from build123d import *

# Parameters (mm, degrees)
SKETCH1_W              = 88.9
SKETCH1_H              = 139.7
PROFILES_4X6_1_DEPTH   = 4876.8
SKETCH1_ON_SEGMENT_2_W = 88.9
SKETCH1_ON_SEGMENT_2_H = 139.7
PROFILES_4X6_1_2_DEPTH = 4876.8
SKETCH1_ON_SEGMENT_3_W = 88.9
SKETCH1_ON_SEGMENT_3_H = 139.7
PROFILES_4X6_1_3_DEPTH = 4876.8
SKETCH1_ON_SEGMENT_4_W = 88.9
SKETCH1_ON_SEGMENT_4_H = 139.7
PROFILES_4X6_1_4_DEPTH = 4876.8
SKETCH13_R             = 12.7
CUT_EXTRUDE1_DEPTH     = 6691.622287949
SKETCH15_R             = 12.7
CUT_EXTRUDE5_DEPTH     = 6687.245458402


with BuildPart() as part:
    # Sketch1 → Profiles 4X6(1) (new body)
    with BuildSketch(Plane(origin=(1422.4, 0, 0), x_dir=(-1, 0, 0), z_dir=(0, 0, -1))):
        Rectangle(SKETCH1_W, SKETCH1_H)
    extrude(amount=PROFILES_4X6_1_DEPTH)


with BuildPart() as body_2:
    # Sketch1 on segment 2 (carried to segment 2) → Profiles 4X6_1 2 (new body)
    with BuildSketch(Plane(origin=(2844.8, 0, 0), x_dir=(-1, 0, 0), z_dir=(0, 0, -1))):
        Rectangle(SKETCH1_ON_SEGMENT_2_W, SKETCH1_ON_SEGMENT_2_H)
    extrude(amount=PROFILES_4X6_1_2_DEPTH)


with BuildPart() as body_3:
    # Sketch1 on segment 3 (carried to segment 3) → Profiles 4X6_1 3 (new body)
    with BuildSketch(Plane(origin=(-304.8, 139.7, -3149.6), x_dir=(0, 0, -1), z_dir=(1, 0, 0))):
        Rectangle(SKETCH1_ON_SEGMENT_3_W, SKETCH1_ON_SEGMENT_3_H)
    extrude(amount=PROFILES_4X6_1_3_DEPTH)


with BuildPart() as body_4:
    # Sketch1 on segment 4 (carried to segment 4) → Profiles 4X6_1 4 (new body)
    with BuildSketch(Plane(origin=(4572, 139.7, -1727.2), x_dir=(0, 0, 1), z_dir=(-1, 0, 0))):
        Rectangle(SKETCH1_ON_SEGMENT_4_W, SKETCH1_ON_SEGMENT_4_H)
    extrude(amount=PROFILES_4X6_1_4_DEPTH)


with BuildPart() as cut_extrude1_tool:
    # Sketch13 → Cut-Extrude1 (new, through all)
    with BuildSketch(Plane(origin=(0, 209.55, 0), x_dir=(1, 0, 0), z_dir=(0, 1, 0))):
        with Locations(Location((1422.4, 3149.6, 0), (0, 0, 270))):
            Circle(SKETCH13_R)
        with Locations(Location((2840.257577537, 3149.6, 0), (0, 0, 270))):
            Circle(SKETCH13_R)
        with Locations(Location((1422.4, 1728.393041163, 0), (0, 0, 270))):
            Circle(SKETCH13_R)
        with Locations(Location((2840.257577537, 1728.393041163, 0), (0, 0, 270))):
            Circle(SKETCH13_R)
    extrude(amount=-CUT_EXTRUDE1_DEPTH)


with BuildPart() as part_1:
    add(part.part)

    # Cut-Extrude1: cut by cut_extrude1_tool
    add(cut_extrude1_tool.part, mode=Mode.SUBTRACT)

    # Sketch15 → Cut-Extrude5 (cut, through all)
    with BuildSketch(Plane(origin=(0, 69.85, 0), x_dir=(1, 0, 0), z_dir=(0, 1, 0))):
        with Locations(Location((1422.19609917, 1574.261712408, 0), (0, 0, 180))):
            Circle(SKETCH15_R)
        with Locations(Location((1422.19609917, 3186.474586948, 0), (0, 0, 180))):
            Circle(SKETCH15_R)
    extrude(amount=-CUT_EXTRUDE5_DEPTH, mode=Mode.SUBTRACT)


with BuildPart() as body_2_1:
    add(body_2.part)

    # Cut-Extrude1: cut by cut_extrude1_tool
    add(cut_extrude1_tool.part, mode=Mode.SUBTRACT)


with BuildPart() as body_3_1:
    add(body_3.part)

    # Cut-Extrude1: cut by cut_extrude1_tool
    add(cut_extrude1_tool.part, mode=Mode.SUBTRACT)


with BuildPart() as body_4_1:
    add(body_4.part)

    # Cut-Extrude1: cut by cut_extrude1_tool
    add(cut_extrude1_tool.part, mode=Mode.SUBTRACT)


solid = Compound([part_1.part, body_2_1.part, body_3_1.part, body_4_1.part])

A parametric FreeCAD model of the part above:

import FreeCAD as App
import Part
import Sketcher

V = App.Vector
Q = App.Units.Quantity


def add_polygon(sketch, points):
    """Adds a closed chain of lines whose ends are joined by coincident constraints."""
    first, n = sketch.GeometryCount, len(points)
    for a, b in zip(points, points[1:] + points[:1]):
        sketch.addGeometry(Part.LineSegment(App.Vector(*a, 0), App.Vector(*b, 0)), False)
    for i in range(n):
        sketch.addConstraint(Sketcher.Constraint("Coincident", first + i, 2, first + (i + 1) % n, 1))

doc = App.newDocument("Part")
body = doc.addObject("PartDesign::Body", "Body")

# Sketch on XY plane
sketch1 = body.newObject("Sketcher::SketchObject", "Sketch")
sketch1.AttachmentSupport = (doc.getObject("XY_Plane"), [""])
sketch1.MapMode = "FlatFace"
add_polygon(sketch1, [(1467, 70), (1467, -70), (1378, -70), (1378, 70)])  # lines 0-3
sketch1.addConstraint(Sketcher.Constraint("Vertical", 0))
sketch1.addConstraint(Sketcher.Constraint("Horizontal", 1))
sketch1.addConstraint(Sketcher.Constraint("Vertical", 2))
sketch1.addConstraint(Sketcher.Constraint("Horizontal", 3))
sketch1.addConstraint(Sketcher.Constraint("DistanceX", 1, 2, 1, 1, Q("3.5 in")))
sketch1.addConstraint(Sketcher.Constraint("DistanceY", 0, 2, 0, 1, Q("5.5 in")))
sketch1.addConstraint(Sketcher.Constraint("DistanceX", -1, 1, 0, 2, Q("57.75 in")))
sketch1.addConstraint(Sketcher.Constraint("DistanceY", 0, 2, -1, 1, Q("2.75 in")))
pad1 = body.newObject("PartDesign::Pad", "Pad")
pad1.Profile = sketch1
pad1.Length = Q("192 in")
pad1.Reversed = True
body2 = doc.addObject("PartDesign::Body", "Body001")

# Sketch on XY plane
sketch2 = body2.newObject("Sketcher::SketchObject", "Sketch001")
sketch2.AttachmentSupport = (doc.getObject("XY_Plane001"), [""])
sketch2.MapMode = "FlatFace"
add_polygon(sketch2, [(2889, 70), (2889, -70), (2800, -70), (2800, 70)])  # lines 0-3
sketch2.addConstraint(Sketcher.Constraint("Vertical", 0))
sketch2.addConstraint(Sketcher.Constraint("Horizontal", 1))
sketch2.addConstraint(Sketcher.Constraint("Vertical", 2))
sketch2.addConstraint(Sketcher.Constraint("Horizontal", 3))
sketch2.addConstraint(Sketcher.Constraint("DistanceX", 1, 2, 1, 1, Q("3.5 in")))
sketch2.addConstraint(Sketcher.Constraint("DistanceY", 0, 2, 0, 1, Q("5.5 in")))
sketch2.addConstraint(Sketcher.Constraint("DistanceX", -1, 1, 0, 2, Q("113.75 in")))
sketch2.addConstraint(Sketcher.Constraint("DistanceY", 0, 2, -1, 1, Q("2.75 in")))
pad2 = body2.newObject("PartDesign::Pad", "Pad001")
pad2.Profile = sketch2
pad2.Length = Q("192 in")
pad2.Reversed = True
body3 = doc.addObject("PartDesign::Body", "Body002")

# Sketch on YZ plane
sketch3 = body3.newObject("Sketcher::SketchObject", "Sketch002")
sketch3.AttachmentSupport = (doc.getObject("YZ_Plane002"), [""])
sketch3.MapMode = "FlatFace"
sketch3.AttachmentOffset = App.Placement(V(0, 0, -12 * 25.4), App.Rotation())
add_polygon(sketch3, [(210, -3105), (70, -3105), (70, -3194), (210, -3194)])  # lines 0-3
sketch3.addConstraint(Sketcher.Constraint("Horizontal", 0))
sketch3.addConstraint(Sketcher.Constraint("Vertical", 1))
sketch3.addConstraint(Sketcher.Constraint("Horizontal", 2))
sketch3.addConstraint(Sketcher.Constraint("Vertical", 3))
sketch3.addConstraint(Sketcher.Constraint("DistanceX", 0, 2, 0, 1, Q("5.5 in")))
sketch3.addConstraint(Sketcher.Constraint("DistanceY", 1, 2, 1, 1, Q("3.5 in")))
sketch3.addConstraint(Sketcher.Constraint("DistanceX", -1, 1, 0, 2, Q("2.75 in")))
sketch3.addConstraint(Sketcher.Constraint("DistanceY", 0, 2, -1, 1, Q("122.25 in")))
pad3 = body3.newObject("PartDesign::Pad", "Pad002")
pad3.Profile = sketch3
pad3.Length = Q("192 in")
body4 = doc.addObject("PartDesign::Body", "Body003")

# Sketch on YZ plane
sketch4 = body4.newObject("Sketcher::SketchObject", "Sketch003")
sketch4.AttachmentSupport = (doc.getObject("YZ_Plane003"), [""])
sketch4.MapMode = "FlatFace"
sketch4.AttachmentOffset = App.Placement(V(0, 0, 180 * 25.4), App.Rotation())
add_polygon(sketch4, [(210, -1772), (70, -1772), (70, -1683), (210, -1683)])  # lines 0-3
sketch4.addConstraint(Sketcher.Constraint("Horizontal", 0))
sketch4.addConstraint(Sketcher.Constraint("Vertical", 1))
sketch4.addConstraint(Sketcher.Constraint("Horizontal", 2))
sketch4.addConstraint(Sketcher.Constraint("Vertical", 3))
sketch4.addConstraint(Sketcher.Constraint("DistanceX", 0, 2, 0, 1, Q("5.5 in")))
sketch4.addConstraint(Sketcher.Constraint("DistanceY", 1, 1, 1, 2, Q("3.5 in")))
sketch4.addConstraint(Sketcher.Constraint("DistanceX", -1, 1, 0, 2, Q("2.75 in")))
sketch4.addConstraint(Sketcher.Constraint("DistanceY", 0, 2, -1, 1, Q("69.75 in")))
pad4 = body4.newObject("PartDesign::Pad", "Pad003")
pad4.Profile = sketch4
pad4.Length = Q("192 in")
pad4.Reversed = True
body5 = doc.addObject("PartDesign::Body", "Body004")
body5.AllowCompound = True

# Sketch on XZ plane
sketch5 = body5.newObject("Sketcher::SketchObject", "Sketch004")
sketch5.AttachmentSupport = (doc.getObject("XZ_Plane004"), [""])
sketch5.MapMode = "FlatFace"
sketch5.AttachmentOffset = App.Placement(V(0, 0, -8.25 * 25.4), App.Rotation())
sketch5.addGeometry(Part.Circle(V(1422, -3150, 0), V(0, 0, 1), 13), False)
sketch5.addGeometry(Part.Circle(V(2840, -3150, 0), V(0, 0, 1), 13), False)
sketch5.addGeometry(Part.Circle(V(1422, -1728, 0), V(0, 0, 1), 13), False)
sketch5.addGeometry(Part.Circle(V(2840, -1728, 0), V(0, 0, 1), 13), False)
sketch5.addConstraint(Sketcher.Constraint("Equal", 0, 1))
sketch5.addConstraint(Sketcher.Constraint("Equal", 1, 2))
sketch5.addConstraint(Sketcher.Constraint("Equal", 2, 3))
sketch5.addConstraint(Sketcher.Constraint("Horizontal", 0, 3, 1, 3))
sketch5.addConstraint(Sketcher.Constraint("Horizontal", 2, 3, 3, 3))
sketch5.addConstraint(Sketcher.Constraint("Vertical", 0, 3, 2, 3))
sketch5.addConstraint(Sketcher.Constraint("Vertical", 1, 3, 3, 3))
sketch5.addConstraint(Sketcher.Constraint("Diameter", 0, Q("1 in")))
sketch5.addConstraint(Sketcher.Constraint("DistanceX", -1, 1, 0, 3, Q("56 in")))
sketch5.addConstraint(Sketcher.Constraint("DistanceY", 0, 3, -1, 1, Q("124 in")))
sketch5.addConstraint(Sketcher.Constraint("DistanceY", 2, 3, -1, 1, Q("1728.393041 mm")))
sketch5.addConstraint(Sketcher.Constraint("DistanceX", -1, 1, 1, 3, Q("2840.257578 mm")))
pad5 = body5.newObject("PartDesign::Pad", "Pad004")
pad5.Profile = sketch5
pad5.Length = 6691.622288
doc.recompute()

body6 = doc.addObject("PartDesign::Body", "Body005")
body6.BaseFeature = body5
boolean = body.newObject("PartDesign::Boolean", "Boolean")
boolean.Type = "Cut"
boolean.addObjects([body6])
doc.recompute()

# Sketch on XZ plane
sketch6 = body.newObject("Sketcher::SketchObject", "Sketch005")
sketch6.AttachmentSupport = (doc.getObject("XZ_Plane"), [""])
sketch6.MapMode = "FlatFace"
sketch6.AttachmentOffset = App.Placement(V(0, 0, -2.75 * 25.4), App.Rotation())
sketch6.addGeometry(Part.Circle(V(1422, -1574, 0), V(0, 0, 1), 13), False)
sketch6.addGeometry(Part.Circle(V(1422, -3186, 0), V(0, 0, 1), 13), False)
sketch6.addConstraint(Sketcher.Constraint("Equal", 0, 1))
sketch6.addConstraint(Sketcher.Constraint("Vertical", 0, 3, 1, 3))
sketch6.addConstraint(Sketcher.Constraint("Diameter", 0, Q("1 in")))
sketch6.addConstraint(Sketcher.Constraint("DistanceX", -1, 1, 0, 3, Q("1422.196099 mm")))
sketch6.addConstraint(Sketcher.Constraint("DistanceY", 0, 3, -1, 1, Q("1574.261712 mm")))
sketch6.addConstraint(Sketcher.Constraint("DistanceY", 1, 3, -1, 1, Q("3186.474587 mm")))
pocket1 = body.newObject("PartDesign::Pocket", "Pocket")
pocket1.Profile = sketch6
pocket1.Type = "ThroughAll"
pocket1.Reversed = True
doc.recompute()

body7 = doc.addObject("PartDesign::Body", "Body006")
body7.BaseFeature = body5
boolean2 = body2.newObject("PartDesign::Boolean", "Boolean001")
boolean2.Type = "Cut"
boolean2.addObjects([body7])
doc.recompute()

body8 = doc.addObject("PartDesign::Body", "Body007")
body8.BaseFeature = body5
boolean3 = body3.newObject("PartDesign::Boolean", "Boolean002")
boolean3.Type = "Cut"
boolean3.addObjects([body8])
doc.recompute()

boolean4 = body4.newObject("PartDesign::Boolean", "Boolean003")
boolean4.Type = "Cut"
boolean4.addObjects([body5])

doc.recompute()
